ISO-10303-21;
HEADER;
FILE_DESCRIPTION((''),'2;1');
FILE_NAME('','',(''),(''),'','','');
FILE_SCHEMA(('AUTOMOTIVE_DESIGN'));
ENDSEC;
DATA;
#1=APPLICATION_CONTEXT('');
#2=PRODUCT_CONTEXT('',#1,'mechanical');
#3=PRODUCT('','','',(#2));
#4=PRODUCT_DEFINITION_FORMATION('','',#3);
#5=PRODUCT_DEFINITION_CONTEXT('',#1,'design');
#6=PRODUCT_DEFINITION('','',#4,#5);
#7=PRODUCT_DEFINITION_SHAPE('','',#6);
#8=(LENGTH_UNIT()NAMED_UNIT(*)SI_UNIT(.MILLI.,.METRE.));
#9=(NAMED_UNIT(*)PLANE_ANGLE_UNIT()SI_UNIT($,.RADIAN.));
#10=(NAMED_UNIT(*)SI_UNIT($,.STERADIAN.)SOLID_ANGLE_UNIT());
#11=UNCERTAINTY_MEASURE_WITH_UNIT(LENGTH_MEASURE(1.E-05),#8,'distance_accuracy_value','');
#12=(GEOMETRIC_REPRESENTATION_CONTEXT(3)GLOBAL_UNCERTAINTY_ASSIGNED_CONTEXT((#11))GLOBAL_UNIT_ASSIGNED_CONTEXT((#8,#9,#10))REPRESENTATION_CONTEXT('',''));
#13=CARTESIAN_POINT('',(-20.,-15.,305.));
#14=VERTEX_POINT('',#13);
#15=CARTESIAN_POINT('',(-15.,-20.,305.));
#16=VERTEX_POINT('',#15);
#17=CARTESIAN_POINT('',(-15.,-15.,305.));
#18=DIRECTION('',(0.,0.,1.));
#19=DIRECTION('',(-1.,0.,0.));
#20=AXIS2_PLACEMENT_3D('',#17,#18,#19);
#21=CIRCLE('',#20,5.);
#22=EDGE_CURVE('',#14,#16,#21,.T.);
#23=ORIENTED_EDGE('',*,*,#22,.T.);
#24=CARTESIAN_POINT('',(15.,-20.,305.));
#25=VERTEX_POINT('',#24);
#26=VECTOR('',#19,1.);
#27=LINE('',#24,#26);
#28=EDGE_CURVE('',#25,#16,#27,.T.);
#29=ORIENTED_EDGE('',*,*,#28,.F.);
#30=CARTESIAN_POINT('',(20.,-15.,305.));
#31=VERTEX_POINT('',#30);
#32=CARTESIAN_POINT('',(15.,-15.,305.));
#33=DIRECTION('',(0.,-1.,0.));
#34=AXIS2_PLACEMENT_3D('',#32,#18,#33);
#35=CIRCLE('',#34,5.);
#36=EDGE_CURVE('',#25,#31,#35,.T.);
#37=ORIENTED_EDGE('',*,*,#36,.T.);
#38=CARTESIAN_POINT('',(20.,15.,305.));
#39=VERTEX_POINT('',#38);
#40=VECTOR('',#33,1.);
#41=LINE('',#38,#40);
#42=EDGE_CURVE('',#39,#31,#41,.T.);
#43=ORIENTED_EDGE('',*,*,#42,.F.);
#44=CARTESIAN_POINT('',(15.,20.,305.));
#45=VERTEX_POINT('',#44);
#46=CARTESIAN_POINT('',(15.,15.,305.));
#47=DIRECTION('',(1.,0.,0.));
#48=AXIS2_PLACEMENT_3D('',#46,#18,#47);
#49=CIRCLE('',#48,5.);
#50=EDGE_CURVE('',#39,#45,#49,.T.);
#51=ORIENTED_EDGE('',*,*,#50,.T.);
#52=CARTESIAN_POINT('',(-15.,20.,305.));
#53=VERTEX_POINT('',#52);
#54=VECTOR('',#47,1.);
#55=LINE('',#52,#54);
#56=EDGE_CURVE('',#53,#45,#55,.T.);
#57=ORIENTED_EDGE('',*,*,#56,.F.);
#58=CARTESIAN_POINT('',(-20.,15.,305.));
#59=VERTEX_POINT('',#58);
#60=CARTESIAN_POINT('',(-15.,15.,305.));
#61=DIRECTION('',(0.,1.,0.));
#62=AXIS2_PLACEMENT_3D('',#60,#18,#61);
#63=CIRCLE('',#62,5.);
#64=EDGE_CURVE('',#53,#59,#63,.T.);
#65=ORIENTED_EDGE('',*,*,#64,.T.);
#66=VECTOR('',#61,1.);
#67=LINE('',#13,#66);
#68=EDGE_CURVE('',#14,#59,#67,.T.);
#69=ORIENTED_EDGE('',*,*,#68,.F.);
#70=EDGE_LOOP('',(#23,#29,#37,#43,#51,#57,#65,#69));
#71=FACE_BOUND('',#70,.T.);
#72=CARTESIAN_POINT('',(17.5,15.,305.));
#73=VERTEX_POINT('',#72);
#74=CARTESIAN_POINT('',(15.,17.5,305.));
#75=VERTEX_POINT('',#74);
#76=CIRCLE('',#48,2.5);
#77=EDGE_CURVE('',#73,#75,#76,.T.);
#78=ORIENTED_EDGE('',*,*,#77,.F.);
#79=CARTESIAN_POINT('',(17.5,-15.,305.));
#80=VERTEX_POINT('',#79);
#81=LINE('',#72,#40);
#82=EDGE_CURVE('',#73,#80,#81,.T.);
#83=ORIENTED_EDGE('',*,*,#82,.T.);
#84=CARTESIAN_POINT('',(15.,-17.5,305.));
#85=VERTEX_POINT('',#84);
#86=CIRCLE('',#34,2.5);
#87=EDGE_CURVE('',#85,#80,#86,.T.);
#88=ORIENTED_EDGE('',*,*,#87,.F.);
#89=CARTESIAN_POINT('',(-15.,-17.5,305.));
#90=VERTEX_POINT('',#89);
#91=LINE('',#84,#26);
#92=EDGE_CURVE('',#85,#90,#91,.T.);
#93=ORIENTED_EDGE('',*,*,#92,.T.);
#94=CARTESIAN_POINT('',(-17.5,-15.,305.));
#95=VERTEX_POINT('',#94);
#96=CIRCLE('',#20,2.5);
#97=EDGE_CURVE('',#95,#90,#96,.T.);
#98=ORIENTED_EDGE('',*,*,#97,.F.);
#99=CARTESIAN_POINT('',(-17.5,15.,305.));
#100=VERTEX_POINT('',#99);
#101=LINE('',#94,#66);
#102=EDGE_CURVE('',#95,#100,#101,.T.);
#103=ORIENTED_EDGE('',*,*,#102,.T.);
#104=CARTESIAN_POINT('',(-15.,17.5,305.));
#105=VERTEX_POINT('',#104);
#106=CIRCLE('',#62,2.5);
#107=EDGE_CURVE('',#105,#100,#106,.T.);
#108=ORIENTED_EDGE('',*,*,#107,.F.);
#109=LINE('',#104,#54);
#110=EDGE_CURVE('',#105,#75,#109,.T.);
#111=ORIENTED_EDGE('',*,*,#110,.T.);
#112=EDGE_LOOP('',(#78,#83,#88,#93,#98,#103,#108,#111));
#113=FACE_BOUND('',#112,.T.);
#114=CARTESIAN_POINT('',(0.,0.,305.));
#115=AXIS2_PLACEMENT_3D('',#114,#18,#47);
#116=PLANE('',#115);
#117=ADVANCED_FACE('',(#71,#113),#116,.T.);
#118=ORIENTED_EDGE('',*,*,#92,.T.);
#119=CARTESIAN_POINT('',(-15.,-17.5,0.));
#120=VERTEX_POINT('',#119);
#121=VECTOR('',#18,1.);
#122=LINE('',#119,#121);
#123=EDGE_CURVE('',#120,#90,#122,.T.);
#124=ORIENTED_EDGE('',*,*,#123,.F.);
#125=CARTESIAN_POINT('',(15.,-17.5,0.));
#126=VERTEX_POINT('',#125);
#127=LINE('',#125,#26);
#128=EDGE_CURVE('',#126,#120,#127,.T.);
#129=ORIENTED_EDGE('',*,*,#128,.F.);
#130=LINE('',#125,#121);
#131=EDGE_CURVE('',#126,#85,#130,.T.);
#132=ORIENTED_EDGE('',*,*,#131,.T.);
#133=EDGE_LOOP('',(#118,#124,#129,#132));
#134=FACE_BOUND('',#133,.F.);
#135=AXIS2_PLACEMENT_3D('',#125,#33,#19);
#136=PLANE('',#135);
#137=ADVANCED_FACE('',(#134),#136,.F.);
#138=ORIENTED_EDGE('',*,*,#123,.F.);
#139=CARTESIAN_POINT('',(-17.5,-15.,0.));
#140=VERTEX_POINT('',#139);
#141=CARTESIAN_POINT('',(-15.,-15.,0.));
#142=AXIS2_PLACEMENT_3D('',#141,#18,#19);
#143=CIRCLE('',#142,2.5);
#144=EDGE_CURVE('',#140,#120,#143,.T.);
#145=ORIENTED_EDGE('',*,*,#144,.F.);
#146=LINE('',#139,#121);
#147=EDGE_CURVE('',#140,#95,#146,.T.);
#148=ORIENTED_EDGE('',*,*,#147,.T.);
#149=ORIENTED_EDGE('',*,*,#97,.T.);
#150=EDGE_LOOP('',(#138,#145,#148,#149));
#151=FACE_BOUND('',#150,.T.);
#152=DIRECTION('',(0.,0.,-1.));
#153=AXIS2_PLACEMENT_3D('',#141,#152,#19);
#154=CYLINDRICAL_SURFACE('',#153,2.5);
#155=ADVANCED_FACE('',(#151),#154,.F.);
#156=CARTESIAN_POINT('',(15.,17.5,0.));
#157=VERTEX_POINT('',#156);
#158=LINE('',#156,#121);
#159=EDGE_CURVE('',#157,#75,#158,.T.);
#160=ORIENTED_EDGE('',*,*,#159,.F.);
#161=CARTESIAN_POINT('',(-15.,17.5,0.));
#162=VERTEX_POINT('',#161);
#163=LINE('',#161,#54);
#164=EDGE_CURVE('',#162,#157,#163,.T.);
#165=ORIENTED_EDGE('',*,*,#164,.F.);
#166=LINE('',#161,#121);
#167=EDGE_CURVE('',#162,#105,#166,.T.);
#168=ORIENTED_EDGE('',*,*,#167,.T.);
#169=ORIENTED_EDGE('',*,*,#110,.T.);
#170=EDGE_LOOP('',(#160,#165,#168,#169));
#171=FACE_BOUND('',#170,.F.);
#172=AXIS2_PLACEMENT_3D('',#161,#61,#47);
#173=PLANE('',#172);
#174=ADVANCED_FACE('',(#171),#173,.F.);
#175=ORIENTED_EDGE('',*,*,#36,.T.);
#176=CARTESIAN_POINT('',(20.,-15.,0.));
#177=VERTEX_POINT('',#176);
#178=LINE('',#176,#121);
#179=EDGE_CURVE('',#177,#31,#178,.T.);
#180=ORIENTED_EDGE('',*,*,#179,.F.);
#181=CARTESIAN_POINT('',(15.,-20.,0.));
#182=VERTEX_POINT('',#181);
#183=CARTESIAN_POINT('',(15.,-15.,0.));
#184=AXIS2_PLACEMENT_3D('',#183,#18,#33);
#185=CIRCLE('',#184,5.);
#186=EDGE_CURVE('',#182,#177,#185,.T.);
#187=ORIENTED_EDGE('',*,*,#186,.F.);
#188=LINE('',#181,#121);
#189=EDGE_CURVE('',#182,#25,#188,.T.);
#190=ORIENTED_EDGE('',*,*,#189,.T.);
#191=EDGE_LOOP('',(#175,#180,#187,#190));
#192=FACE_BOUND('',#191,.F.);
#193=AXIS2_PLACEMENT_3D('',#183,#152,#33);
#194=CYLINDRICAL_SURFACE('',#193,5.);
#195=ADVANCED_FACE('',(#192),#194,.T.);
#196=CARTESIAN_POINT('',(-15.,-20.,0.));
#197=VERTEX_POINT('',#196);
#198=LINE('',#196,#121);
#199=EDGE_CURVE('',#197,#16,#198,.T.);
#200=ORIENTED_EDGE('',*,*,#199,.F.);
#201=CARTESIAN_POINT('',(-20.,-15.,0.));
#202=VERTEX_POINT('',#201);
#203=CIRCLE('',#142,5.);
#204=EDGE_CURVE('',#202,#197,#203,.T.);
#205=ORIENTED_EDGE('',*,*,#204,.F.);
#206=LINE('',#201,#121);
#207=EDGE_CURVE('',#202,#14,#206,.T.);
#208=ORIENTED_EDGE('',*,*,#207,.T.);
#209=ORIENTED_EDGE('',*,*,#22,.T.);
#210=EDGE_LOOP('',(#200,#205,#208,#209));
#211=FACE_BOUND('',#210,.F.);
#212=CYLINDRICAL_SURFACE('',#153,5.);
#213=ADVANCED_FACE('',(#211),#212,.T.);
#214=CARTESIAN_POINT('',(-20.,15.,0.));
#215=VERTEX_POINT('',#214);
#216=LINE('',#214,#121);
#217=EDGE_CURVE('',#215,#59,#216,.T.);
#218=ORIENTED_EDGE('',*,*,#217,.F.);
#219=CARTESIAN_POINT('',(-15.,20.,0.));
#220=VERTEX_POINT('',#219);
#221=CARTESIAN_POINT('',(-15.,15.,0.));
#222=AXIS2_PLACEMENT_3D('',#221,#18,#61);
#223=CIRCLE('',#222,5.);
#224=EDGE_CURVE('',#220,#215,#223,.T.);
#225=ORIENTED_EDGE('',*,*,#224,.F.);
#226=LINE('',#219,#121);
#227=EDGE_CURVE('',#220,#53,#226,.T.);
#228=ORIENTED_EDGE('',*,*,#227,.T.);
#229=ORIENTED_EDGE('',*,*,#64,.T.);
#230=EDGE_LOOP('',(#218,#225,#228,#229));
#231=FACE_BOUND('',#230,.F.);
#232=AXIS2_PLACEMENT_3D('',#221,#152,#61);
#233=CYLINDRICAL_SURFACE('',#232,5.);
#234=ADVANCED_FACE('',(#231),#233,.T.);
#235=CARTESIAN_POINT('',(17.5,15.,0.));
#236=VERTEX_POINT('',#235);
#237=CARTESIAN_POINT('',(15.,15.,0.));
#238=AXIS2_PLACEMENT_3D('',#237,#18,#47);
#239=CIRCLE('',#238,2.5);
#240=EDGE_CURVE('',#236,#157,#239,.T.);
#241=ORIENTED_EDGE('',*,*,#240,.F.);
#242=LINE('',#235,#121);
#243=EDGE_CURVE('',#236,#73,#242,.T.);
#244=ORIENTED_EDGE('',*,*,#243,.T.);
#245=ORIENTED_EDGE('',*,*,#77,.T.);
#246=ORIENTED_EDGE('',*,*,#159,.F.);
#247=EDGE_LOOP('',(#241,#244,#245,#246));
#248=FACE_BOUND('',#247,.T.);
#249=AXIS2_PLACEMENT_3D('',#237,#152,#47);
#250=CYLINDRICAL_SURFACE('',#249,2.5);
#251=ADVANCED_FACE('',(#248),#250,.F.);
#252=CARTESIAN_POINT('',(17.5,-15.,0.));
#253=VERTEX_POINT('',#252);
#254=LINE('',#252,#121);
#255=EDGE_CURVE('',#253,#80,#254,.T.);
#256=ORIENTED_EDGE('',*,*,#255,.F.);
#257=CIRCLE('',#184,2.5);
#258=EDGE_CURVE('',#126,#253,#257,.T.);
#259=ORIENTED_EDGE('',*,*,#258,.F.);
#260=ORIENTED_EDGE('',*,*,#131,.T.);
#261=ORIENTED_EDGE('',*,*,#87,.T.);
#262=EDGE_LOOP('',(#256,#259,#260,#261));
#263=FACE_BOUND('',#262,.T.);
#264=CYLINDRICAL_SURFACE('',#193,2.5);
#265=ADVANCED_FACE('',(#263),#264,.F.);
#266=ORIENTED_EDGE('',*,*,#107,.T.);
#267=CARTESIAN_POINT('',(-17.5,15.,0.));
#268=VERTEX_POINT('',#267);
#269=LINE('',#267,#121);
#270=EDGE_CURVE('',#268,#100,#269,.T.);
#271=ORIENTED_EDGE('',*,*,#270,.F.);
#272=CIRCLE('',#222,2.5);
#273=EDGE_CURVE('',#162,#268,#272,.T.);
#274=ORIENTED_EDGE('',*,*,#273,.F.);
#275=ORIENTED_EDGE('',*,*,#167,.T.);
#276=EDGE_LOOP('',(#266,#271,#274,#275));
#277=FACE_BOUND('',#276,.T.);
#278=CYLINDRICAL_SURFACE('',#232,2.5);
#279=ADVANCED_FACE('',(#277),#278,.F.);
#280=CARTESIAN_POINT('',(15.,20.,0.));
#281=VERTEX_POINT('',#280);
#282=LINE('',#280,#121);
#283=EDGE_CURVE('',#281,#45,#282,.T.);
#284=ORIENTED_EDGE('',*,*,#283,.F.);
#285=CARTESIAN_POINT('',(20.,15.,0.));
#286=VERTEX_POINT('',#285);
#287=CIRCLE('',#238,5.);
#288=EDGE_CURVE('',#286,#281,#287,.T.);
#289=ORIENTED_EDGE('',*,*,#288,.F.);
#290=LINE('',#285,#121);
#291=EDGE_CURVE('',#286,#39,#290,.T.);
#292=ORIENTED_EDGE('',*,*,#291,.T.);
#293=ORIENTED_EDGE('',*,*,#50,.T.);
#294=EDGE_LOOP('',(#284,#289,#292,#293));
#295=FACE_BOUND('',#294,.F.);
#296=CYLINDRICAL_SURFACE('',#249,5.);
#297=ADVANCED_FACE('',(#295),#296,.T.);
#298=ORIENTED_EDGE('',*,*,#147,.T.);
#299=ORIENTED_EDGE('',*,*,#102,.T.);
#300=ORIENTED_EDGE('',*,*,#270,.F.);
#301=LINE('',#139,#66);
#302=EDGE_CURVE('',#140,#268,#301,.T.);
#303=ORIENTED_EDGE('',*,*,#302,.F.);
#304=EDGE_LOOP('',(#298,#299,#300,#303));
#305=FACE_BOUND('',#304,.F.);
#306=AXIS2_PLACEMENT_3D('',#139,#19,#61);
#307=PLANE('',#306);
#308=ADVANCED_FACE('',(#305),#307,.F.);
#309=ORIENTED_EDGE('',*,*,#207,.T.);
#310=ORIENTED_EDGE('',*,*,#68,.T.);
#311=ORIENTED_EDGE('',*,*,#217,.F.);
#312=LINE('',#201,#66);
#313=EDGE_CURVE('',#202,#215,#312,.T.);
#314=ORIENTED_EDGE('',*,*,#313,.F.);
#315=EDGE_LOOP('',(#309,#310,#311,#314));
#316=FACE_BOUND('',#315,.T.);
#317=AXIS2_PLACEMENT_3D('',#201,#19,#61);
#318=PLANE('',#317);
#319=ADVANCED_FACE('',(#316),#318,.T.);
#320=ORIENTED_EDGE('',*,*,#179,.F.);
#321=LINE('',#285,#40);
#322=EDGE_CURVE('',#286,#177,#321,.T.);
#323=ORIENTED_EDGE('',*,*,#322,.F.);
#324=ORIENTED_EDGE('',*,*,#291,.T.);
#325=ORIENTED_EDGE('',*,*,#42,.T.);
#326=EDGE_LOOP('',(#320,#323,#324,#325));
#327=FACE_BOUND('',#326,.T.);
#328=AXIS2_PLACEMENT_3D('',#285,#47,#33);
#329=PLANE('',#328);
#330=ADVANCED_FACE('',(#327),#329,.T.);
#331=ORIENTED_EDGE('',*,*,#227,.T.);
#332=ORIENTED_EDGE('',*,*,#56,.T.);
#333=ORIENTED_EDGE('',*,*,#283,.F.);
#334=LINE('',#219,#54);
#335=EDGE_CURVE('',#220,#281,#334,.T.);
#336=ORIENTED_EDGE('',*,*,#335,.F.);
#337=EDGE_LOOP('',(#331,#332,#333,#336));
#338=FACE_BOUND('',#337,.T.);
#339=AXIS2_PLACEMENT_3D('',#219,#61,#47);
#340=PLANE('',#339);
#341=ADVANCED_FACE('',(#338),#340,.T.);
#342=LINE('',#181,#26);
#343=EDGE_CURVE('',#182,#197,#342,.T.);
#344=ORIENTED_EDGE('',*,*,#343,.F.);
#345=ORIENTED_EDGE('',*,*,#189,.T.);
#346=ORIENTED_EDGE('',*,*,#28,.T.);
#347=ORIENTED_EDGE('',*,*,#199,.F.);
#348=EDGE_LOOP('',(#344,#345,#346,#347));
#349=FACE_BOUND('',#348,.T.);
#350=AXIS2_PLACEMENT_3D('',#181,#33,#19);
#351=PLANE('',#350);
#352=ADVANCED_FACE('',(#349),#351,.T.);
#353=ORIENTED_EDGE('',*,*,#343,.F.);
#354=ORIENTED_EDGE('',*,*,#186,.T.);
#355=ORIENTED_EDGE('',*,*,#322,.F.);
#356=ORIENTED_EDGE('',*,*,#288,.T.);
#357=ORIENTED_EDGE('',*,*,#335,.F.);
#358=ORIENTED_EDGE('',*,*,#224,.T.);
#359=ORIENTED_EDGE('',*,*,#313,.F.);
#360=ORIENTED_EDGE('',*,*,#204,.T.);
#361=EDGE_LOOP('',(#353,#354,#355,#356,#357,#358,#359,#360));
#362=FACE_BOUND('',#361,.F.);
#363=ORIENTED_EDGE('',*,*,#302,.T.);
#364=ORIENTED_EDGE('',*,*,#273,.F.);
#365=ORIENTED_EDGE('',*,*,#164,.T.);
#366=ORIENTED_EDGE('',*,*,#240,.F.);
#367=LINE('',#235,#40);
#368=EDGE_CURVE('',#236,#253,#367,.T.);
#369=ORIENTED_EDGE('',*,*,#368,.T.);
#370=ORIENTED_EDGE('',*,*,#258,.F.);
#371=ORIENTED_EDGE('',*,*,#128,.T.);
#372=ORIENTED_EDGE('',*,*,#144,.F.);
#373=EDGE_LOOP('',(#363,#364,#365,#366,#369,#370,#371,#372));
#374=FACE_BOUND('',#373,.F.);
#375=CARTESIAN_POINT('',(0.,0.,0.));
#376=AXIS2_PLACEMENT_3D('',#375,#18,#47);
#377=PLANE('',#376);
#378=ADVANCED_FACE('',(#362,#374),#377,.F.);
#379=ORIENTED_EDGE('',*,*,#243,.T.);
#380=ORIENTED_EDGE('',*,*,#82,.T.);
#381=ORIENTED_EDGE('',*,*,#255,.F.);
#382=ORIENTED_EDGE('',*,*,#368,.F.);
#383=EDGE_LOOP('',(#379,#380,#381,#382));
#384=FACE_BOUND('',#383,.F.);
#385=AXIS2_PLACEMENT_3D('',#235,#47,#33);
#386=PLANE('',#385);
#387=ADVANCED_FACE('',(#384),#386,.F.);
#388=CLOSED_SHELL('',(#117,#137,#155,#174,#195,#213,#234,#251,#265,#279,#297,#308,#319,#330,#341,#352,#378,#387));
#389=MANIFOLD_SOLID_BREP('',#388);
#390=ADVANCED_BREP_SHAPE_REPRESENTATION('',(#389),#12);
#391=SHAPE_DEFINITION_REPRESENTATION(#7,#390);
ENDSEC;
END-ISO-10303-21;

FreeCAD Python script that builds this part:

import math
import FreeCAD as App
import Part
import Sketcher

V = App.Vector

doc = App.newDocument("Part")
body = doc.addObject("PartDesign::Body", "Body")

# Sketch on XY plane
sketch1 = body.newObject("Sketcher::SketchObject", "Sketch")
sketch1.AttachmentSupport = (doc.getObject("XY_Plane"), [""])
sketch1.MapMode = "FlatFace"
sketch1.addGeometry([
    Part.LineSegment(V(-20, 15, 0), V(-20, -15, 0)),  # 0
    Part.ArcOfCircle(Part.Circle(V(-15, -15, 0), V(0, 0, 1), 5), math.radians(180), math.radians(270)),  # 1
    Part.LineSegment(V(-15, -20, 0), V(15, -20, 0)),  # 2
    Part.ArcOfCircle(Part.Circle(V(15, -15, 0), V(0, 0, 1), 5), math.radians(-90), math.radians(0)),  # 3
    Part.LineSegment(V(20, -15, 0), V(20, 15, 0)),  # 4
    Part.ArcOfCircle(Part.Circle(V(15, 15, 0), V(0, 0, 1), 5), math.radians(0), math.radians(90)),  # 5
    Part.LineSegment(V(15, 20, 0), V(-15, 20, 0)),  # 6
    Part.ArcOfCircle(Part.Circle(V(-15, 15, 0), V(0, 0, 1), 5), math.radians(90), math.radians(180)),  # 7
    Part.ArcOfCircle(Part.Circle(V(-15, 15, 0), V(0, 0, 1), 2.5), math.radians(90), math.radians(180)),  # 8
    Part.LineSegment(V(-15, 17.5, 0), V(15, 17.5, 0)),  # 9
    Part.ArcOfCircle(Part.Circle(V(15, 15, 0), V(0, 0, 1), 2.5), math.radians(0), math.radians(90)),  # 10
    Part.LineSegment(V(17.5, 15, 0), V(17.5, -15, 0)),  # 11
    Part.ArcOfCircle(Part.Circle(V(15, -15, 0), V(0, 0, 1), 2.5), math.radians(-90), math.radians(0)),  # 12
    Part.LineSegment(V(15, -17.5, 0), V(-15, -17.5, 0)),  # 13
    Part.ArcOfCircle(Part.Circle(V(-15, -15, 0), V(0, 0, 1), 2.5), math.radians(180), math.radians(270)),  # 14
    Part.LineSegment(V(-17.5, -15, 0), V(-17.5, 15, 0)),  # 15
], False)
sketch1.addConstraint([
    Sketcher.Constraint("Tangent", 0, 2, 1, 1),
    Sketcher.Constraint("Tangent", 1, 2, 2, 1),
    Sketcher.Constraint("Tangent", 2, 2, 3, 1),
    Sketcher.Constraint("Tangent", 3, 2, 4, 1),
    Sketcher.Constraint("Tangent", 4, 2, 5, 1),
    Sketcher.Constraint("Tangent", 5, 2, 6, 1),
    Sketcher.Constraint("Tangent", 6, 2, 7, 1),
    Sketcher.Constraint("Tangent", 7, 2, 0, 1),
    Sketcher.Constraint("Tangent", 8, 1, 9, 1),
    Sketcher.Constraint("Tangent", 9, 2, 10, 2),
    Sketcher.Constraint("Tangent", 10, 1, 11, 1),
    Sketcher.Constraint("Tangent", 11, 2, 12, 2),
    Sketcher.Constraint("Tangent", 12, 1, 13, 1),
    Sketcher.Constraint("Tangent", 13, 2, 14, 2),
    Sketcher.Constraint("Tangent", 14, 1, 15, 1),
    Sketcher.Constraint("Tangent", 15, 2, 8, 2),
    Sketcher.Constraint("Vertical", 0),
    Sketcher.Constraint("Horizontal", 2),
    Sketcher.Constraint("Vertical", 4),
    Sketcher.Constraint("Horizontal", 6),
    Sketcher.Constraint("Horizontal", 9),
    Sketcher.Constraint("Vertical", 11),
    Sketcher.Constraint("Horizontal", 13),
    Sketcher.Constraint("Vertical", 15),
    Sketcher.Constraint("Coincident", 8, 3, 7, 3),
    Sketcher.Constraint("Coincident", 10, 3, 5, 3),
    Sketcher.Constraint("Coincident", 12, 3, 3, 3),
    Sketcher.Constraint("Equal", 1, 3),
    Sketcher.Constraint("Equal", 3, 5),
    Sketcher.Constraint("Equal", 5, 7),
    Sketcher.Constraint("Equal", 12, 14),
    Sketcher.Constraint("Symmetric", 1, 3, 5, 3, -1, 1),
    Sketcher.Constraint("Equal", 13, 0),
    Sketcher.Constraint("Radius", 1, 5.0),
    Sketcher.Constraint("Radius", 8, 2.5),
    Sketcher.Constraint("DistanceX", 0, 2, -1, 1, 20.0),
])
pad1 = body.newObject("PartDesign::Pad", "Pad")
pad1.Profile = sketch1
pad1.Length = 305

doc.recompute()
